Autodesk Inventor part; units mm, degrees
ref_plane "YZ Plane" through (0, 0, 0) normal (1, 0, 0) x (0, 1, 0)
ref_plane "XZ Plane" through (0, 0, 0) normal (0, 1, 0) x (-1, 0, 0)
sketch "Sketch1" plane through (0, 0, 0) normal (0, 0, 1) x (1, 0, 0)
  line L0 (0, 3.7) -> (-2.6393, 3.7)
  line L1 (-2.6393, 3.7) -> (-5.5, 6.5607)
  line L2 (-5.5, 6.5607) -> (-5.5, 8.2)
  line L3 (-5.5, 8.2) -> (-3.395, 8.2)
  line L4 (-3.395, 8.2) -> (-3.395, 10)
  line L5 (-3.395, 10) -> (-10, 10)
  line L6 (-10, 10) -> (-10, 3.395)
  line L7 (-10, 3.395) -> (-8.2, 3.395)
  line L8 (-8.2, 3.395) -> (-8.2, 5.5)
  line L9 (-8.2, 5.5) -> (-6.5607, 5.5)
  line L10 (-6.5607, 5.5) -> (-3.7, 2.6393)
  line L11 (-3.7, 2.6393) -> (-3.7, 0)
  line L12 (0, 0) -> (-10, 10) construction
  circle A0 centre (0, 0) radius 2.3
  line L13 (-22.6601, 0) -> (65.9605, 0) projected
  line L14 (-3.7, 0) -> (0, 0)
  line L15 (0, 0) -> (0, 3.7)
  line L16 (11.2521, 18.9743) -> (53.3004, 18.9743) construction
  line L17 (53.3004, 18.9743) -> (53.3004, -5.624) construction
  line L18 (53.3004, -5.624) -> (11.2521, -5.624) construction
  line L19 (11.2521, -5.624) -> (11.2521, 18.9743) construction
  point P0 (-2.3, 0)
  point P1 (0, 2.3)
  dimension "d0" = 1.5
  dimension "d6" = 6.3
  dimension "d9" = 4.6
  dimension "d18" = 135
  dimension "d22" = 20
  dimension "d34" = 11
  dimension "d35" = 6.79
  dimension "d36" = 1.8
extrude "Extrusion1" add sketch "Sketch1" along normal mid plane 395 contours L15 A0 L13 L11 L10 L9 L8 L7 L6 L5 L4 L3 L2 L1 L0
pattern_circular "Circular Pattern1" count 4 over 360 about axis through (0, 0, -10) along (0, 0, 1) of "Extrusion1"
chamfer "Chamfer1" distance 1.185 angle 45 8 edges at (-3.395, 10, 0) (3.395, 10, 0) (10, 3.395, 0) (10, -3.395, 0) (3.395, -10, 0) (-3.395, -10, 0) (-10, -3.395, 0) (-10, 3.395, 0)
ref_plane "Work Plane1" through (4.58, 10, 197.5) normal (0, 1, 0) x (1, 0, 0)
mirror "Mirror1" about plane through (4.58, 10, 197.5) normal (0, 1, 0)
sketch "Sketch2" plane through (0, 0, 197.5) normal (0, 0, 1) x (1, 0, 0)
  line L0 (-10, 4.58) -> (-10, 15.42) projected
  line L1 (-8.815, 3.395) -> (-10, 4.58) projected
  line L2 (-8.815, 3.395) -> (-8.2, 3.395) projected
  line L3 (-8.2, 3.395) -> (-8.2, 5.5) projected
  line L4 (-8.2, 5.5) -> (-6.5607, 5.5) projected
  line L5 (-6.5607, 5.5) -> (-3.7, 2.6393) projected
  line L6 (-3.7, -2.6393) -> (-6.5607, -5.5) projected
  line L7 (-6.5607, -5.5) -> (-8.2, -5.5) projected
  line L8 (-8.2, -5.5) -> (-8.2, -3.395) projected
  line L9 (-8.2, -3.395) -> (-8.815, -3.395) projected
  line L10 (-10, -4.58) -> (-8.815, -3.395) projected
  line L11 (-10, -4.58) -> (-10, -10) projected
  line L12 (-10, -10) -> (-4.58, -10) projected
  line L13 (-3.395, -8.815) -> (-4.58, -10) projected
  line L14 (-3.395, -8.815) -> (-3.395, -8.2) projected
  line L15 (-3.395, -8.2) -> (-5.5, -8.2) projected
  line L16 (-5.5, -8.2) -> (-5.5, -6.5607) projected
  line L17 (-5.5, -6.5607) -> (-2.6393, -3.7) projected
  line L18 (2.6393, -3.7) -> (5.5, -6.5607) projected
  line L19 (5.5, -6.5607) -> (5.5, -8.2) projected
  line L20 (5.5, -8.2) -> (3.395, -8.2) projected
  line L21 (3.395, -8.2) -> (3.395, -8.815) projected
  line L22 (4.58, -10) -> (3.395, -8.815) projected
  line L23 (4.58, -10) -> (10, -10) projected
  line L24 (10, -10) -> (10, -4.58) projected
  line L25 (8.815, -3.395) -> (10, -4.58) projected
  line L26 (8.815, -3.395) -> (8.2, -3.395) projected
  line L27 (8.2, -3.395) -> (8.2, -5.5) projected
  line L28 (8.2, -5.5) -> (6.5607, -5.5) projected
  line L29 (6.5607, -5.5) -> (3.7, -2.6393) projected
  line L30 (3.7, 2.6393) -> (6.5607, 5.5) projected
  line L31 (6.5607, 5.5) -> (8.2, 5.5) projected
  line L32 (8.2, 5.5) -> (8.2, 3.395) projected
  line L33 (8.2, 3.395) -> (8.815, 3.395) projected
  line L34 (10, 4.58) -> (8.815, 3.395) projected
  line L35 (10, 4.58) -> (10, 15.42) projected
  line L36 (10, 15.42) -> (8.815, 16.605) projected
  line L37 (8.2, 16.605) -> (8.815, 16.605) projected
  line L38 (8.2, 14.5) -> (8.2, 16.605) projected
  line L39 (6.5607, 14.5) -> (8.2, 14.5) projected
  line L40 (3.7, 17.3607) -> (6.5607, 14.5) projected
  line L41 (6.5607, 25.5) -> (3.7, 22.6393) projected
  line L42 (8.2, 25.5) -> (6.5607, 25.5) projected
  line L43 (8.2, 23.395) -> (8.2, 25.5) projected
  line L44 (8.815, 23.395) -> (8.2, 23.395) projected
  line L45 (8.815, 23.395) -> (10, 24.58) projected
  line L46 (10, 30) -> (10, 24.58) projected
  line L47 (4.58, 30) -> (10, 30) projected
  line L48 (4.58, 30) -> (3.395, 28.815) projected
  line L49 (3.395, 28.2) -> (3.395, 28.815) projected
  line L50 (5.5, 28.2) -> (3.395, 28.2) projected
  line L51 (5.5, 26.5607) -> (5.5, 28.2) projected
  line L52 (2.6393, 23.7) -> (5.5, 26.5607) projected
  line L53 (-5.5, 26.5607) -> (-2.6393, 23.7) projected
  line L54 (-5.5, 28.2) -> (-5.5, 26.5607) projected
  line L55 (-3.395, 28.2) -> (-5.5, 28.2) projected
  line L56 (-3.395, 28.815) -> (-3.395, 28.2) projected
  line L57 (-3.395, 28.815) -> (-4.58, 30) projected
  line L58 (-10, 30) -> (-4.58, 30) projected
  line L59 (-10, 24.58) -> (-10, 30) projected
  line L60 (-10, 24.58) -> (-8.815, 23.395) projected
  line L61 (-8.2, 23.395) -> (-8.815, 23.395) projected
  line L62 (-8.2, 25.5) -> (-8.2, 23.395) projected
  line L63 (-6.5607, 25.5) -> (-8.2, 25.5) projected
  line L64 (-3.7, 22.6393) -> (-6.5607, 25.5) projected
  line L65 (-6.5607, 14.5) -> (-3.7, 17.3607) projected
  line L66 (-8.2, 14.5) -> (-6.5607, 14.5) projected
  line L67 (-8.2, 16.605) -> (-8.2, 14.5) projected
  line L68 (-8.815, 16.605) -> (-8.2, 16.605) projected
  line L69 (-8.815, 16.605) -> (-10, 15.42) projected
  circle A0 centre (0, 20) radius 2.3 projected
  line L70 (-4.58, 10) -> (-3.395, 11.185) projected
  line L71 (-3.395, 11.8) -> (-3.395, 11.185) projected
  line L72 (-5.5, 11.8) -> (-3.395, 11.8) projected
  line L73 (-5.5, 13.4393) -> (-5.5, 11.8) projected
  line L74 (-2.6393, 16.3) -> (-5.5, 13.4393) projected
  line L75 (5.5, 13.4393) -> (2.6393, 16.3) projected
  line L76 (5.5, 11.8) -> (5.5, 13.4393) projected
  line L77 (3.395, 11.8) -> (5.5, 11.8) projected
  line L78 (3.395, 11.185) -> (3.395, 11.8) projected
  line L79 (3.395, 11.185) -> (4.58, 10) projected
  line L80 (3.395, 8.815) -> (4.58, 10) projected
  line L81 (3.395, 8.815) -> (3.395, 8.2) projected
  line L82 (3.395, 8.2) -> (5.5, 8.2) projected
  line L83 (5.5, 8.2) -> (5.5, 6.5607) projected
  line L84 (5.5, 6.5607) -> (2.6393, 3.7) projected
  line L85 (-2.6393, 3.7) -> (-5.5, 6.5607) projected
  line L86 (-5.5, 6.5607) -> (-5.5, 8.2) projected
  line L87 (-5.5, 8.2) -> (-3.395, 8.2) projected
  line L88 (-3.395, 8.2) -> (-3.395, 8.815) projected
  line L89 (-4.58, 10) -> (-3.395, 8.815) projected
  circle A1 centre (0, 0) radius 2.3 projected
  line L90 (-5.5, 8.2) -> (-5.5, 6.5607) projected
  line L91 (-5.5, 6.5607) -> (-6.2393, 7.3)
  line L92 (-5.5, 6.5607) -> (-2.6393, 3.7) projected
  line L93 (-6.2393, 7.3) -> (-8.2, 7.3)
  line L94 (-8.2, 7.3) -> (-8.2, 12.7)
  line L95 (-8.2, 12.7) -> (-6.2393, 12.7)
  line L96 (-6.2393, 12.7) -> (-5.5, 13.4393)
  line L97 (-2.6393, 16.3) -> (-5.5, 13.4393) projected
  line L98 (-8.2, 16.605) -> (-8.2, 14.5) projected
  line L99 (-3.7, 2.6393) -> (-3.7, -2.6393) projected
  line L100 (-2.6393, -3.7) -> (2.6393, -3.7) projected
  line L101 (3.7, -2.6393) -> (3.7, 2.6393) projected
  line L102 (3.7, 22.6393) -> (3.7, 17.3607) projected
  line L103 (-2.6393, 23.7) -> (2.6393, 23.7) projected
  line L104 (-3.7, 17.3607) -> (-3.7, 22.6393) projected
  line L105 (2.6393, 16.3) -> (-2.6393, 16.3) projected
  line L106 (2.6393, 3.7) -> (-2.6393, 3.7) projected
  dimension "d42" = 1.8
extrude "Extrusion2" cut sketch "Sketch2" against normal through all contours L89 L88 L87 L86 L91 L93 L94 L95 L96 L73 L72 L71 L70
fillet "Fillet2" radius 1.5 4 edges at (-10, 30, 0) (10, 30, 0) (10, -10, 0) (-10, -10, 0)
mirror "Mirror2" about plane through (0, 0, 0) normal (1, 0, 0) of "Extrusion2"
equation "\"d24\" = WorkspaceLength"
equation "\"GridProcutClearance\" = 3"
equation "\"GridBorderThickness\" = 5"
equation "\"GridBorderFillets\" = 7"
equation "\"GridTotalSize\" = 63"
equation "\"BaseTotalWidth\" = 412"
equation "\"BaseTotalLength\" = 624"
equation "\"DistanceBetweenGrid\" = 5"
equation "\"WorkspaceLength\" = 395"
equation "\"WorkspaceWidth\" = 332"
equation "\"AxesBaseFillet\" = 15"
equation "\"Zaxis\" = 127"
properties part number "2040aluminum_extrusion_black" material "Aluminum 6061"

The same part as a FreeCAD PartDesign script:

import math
import FreeCAD as App
import Part
import Sketcher
from FreeCAD import Vector
Q = App.Units.Quantity


def edges_at(feature, points):
    """Names of the edges that pass closest to the given points."""
    edges = feature.Shape.Edges
    near = lambda p: min(range(len(edges)), key=lambda i: edges[i].distToShape(Part.Vertex(*p))[0])
    return sorted({f"Edge{near(p) + 1}" for p in points})


def add_polygon(sketch, points):
    """Adds a closed chain of lines whose ends are joined by coincident constraints."""
    first, n = sketch.GeometryCount, len(points)
    for a, b in zip(points, points[1:] + points[:1]):
        sketch.addGeometry(Part.LineSegment(App.Vector(*a, 0), App.Vector(*b, 0)), False)
    for i in range(n):
        sketch.addConstraint(Sketcher.Constraint("Coincident", first + i, 2, first + (i + 1) % n, 1))

doc = App.newDocument("Part")
body = doc.addObject("PartDesign::Body", "Body")

sketch1 = body.newObject("Sketcher::SketchObject", "Sketch")
sketch1.AttachmentSupport = (doc.getObject("XY_Plane"), [""])
sketch1.MapMode = "FlatFace"
sketch1.addGeometry([
    Part.LineSegment(Vector(0, 2.3, 0), Vector(0, 3.7, 0)),
    Part.LineSegment(Vector(0, 3.7, 0), Vector(-2.6, 3.7, 0)),
    Part.LineSegment(Vector(-2.6, 3.7, 0), Vector(-5.5, 6.6, 0)),
    Part.LineSegment(Vector(-5.5, 6.6, 0), Vector(-5.5, 8.2, 0)),
    Part.LineSegment(Vector(-5.5, 8.2, 0), Vector(-3.4, 8.2, 0)),
    Part.LineSegment(Vector(-3.4, 8.2, 0), Vector(-3.4, 10, 0)),
    Part.LineSegment(Vector(-3.4, 10, 0), Vector(-10, 10, 0)),
    Part.LineSegment(Vector(-10, 10, 0), Vector(-10, 3.4, 0)),
    Part.LineSegment(Vector(-10, 3.4, 0), Vector(-8.2, 3.4, 0)),
    Part.LineSegment(Vector(-8.2, 3.4, 0), Vector(-8.2, 5.5, 0)),
    Part.LineSegment(Vector(-8.2, 5.5, 0), Vector(-6.6, 5.5, 0)),
    Part.LineSegment(Vector(-6.6, 5.5, 0), Vector(-3.7, 2.6, 0)),
    Part.LineSegment(Vector(-3.7, 2.6, 0), Vector(-3.7, 0, 0)),
    Part.LineSegment(Vector(-3.7, 0, 0), Vector(-2.3, 0, 0)),
    Part.ArcOfCircle(Part.Circle(Vector(0, 0, 0), Vector(0, 0, 1), 2.3), math.radians(90), math.radians(180)),
], False)
sketch1.addConstraint([
    Sketcher.Constraint("Coincident", 0, 2, 1, 1),
    Sketcher.Constraint("Coincident", 1, 2, 2, 1),
    Sketcher.Constraint("Coincident", 2, 2, 3, 1),
    Sketcher.Constraint("Coincident", 3, 2, 4, 1),
    Sketcher.Constraint("Coincident", 4, 2, 5, 1),
    Sketcher.Constraint("Coincident", 5, 2, 6, 1),
    Sketcher.Constraint("Coincident", 6, 2, 7, 1),
    Sketcher.Constraint("Coincident", 7, 2, 8, 1),
    Sketcher.Constraint("Coincident", 8, 2, 9, 1),
    Sketcher.Constraint("Coincident", 9, 2, 10, 1),
    Sketcher.Constraint("Coincident", 10, 2, 11, 1),
    Sketcher.Constraint("Coincident", 11, 2, 12, 1),
    Sketcher.Constraint("Coincident", 12, 2, 13, 1),
    Sketcher.Constraint("Coincident", 13, 2, 14, 2),
    Sketcher.Constraint("Coincident", 14, 1, 0, 1),
    Sketcher.Constraint("Vertical", 0),
    Sketcher.Constraint("Horizontal", 1),
    Sketcher.Constraint("Vertical", 3),
    Sketcher.Constraint("Horizontal", 4),
    Sketcher.Constraint("Vertical", 5),
    Sketcher.Constraint("Horizontal", 6),
    Sketcher.Constraint("Vertical", 7),
    Sketcher.Constraint("Horizontal", 8),
    Sketcher.Constraint("Vertical", 9),
    Sketcher.Constraint("Horizontal", 10),
    Sketcher.Constraint("Vertical", 12),
    Sketcher.Constraint("Horizontal", 13),
    Sketcher.Constraint("Coincident", 14, 3, -1, 1),
    Sketcher.Constraint("PointOnObject", 0, 2, -2),
    Sketcher.Constraint("PointOnObject", 12, 2, -1),
    Sketcher.Constraint("Parallel", 2, 11),
    Sketcher.Constraint("Equal", 13, 0),
    Sketcher.Constraint("Equal", 10, 3),
    Sketcher.Constraint("Equal", 8, 5),
    Sketcher.Constraint("Equal", 6, 7),
    Sketcher.Constraint("Equal", 4, 9),
    Sketcher.Constraint("Equal", 1, 12),
    Sketcher.Constraint("Radius", 14, Q("2.3 mm")),
    Sketcher.Constraint("Angle", 2, Q("135 deg")),
    Sketcher.Constraint("DistanceX", 8, 1, 8, 2, Q("1.8 mm")),
    Sketcher.Constraint("DistanceY", 1, 2, 5, 2, Q("6.3 mm")),
    Sketcher.Constraint("DistanceX", 2, 2, 11, 2, Q("1.8 mm")),
    Sketcher.Constraint("DistanceX", 13, 1, 13, 2, Q("1.4 mm")),
    Sketcher.Constraint("DistanceX", 4, 1, 4, 2, Q("2.105 mm")),
    Sketcher.Constraint("DistanceX", 1, 2, 1, 1, Q("2.6393 mm")),
])
pad1 = body.newObject("PartDesign::Pad", "Pad")
pad1.Profile = sketch1
pad1.Length = 395
pad1.Midplane = True
doc.recompute()

polarpattern = body.newObject("PartDesign::PolarPattern", "PolarPattern")
polarpattern.Originals = [pad1]
polarpattern.Axis = (doc.getObject("Z_Axis"), [""])
polarpattern.Angle = 360
polarpattern.Occurrences = 4
body.Tip = polarpattern
doc.recompute()

chamfer = body.newObject("PartDesign::Chamfer", "Chamfer")
chamfer.Base = (polarpattern, edges_at(polarpattern, [
    (-3.395, 10, 0),
    (3.395, 10, 0),
    (10, 3.395, 0),
    (10, -3.395, 0),
    (3.395, -10, 0),
    (-3.395, -10, 0),
    (-10, -3.395, 0),
    (-10, 3.395, 0),
]))
chamfer.Size = 1.185
doc.recompute()

datumplane = body.newObject("PartDesign::Plane", "DatumPlane")
datumplane.AttachmentSupport = (doc.getObject("XZ_Plane"), [""])
datumplane.MapMode = "FlatFace"
datumplane.AttachmentOffset = App.Placement(Vector(0, 0, -10), App.Rotation())
mirrored = body.newObject("PartDesign::Mirrored", "Mirrored")
mirrored.TransformMode = "Transform body"
mirrored.MirrorPlane = (datumplane, [""])
body.Tip = mirrored

sketch2 = body.newObject("Sketcher::SketchObject", "Sketch001")
sketch2.AttachmentSupport = (doc.getObject("XY_Plane"), [""])
sketch2.MapMode = "FlatFace"
sketch2.AttachmentOffset = App.Placement(Vector(0, 0, 197.5), App.Rotation())
add_polygon(sketch2, [(-3.4, 8.8), (-4.6, 10), (-3.4, 11.2), (-3.4, 11.8), (-5.5, 11.8), (-5.5, 13.4), (-6.2, 12.7), (-8.2, 12.7), (-8.2, 7.3), (-6.2, 7.3), (-5.5, 6.6), (-5.5, 8.2), (-3.4, 8.2)])
sketch2.addConstraint([
    Sketcher.Constraint("Vertical", 2),
    Sketcher.Constraint("Horizontal", 3),
    Sketcher.Constraint("Vertical", 4),
    Sketcher.Constraint("Horizontal", 6),
    Sketcher.Constraint("Vertical", 7),
    Sketcher.Constraint("Horizontal", 8),
    Sketcher.Constraint("Vertical", 10),
    Sketcher.Constraint("Horizontal", 11),
    Sketcher.Constraint("Vertical", 12),
    Sketcher.Constraint("Perpendicular", 0, 1),
    Sketcher.Constraint("Parallel", 1, 5),
    Sketcher.Constraint("Perpendicular", 5, 9),
    Sketcher.Constraint("Vertical", 5, 2, 8, 2),
    Sketcher.Constraint("Vertical", 4, 2, 9, 2),
    Sketcher.Constraint("Vertical", 2, 2, 11, 2),
    Sketcher.Constraint("Equal", 4, 10),
    Sketcher.Constraint("Equal", 2, 12),
    Sketcher.Constraint("Equal", 0, 1),
    Sketcher.Constraint("DistanceY", 0, 2, 2, 2, Q("1.8 mm")),
    Sketcher.Constraint("DistanceY", 7, 2, 7, 1, Q("5.4 mm")),
    Sketcher.Constraint("DistanceY", -1, 1, 0, 2, Q("10 mm")),
    Sketcher.Constraint("DistanceX", 3, 2, -1, 1, Q("5.5 mm")),
    Sketcher.Constraint("DistanceX", 6, 2, -1, 1, Q("8.2 mm")),
    Sketcher.Constraint("DistanceX", 3, 2, 3, 1, Q("2.105 mm")),
    Sketcher.Constraint("DistanceY", 2, 1, 2, 2, Q("0.615 mm")),
    Sketcher.Constraint("DistanceX", 6, 2, 6, 1, Q("1.9607 mm")),
])
pocket1 = body.newObject("PartDesign::Pocket", "Pocket")
pocket1.Profile = sketch2
pocket1.Type = "ThroughAll"
doc.recompute()

fillet = body.newObject("PartDesign::Fillet", "Fillet")
fillet.Base = (pocket1, edges_at(pocket1, [
    (-10, 30, 0),
    (10, 30, 0),
    (10, -10, 0),
    (-10, -10, 0),
]))
fillet.Radius = 1.5
doc.recompute()

mirrored2 = body.newObject("PartDesign::Mirrored", "Mirrored001")
mirrored2.Originals = [pocket1]
mirrored2.MirrorPlane = (doc.getObject("YZ_Plane"), [""])
body.Tip = mirrored2

doc.recompute()
